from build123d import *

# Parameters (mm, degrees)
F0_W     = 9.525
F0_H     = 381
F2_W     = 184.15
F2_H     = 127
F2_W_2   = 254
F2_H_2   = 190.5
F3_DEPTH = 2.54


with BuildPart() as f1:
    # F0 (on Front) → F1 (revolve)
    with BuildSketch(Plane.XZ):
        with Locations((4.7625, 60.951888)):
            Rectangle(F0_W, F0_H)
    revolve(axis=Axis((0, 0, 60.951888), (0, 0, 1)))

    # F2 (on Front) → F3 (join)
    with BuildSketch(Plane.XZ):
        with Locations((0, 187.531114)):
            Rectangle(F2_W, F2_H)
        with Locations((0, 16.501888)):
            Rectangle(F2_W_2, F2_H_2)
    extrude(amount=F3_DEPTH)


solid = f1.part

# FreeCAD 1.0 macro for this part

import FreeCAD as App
import Part
import Sketcher
from FreeCAD import Vector
Q = App.Units.Quantity


def add_polygon(sketch, points):
    """Adds a closed chain of lines whose ends are joined by coincident constraints."""
    first, n = sketch.GeometryCount, len(points)
    for a, b in zip(points, points[1:] + points[:1]):
        sketch.addGeometry(Part.LineSegment(App.Vector(*a, 0), App.Vector(*b, 0)), False)
    for i in range(n):
        sketch.addConstraint(Sketcher.Constraint("Coincident", first + i, 2, first + (i + 1) % n, 1))

doc = App.newDocument("Part")
body = doc.addObject("PartDesign::Body", "Body")

# Sketch on XZ plane
sketch1 = body.newObject("Sketcher::SketchObject", "Sketch")
sketch1.AttachmentSupport = (doc.getObject("XZ_Plane"), [""])
sketch1.MapMode = "FlatFace"
add_polygon(sketch1, [(0, 251), (0, -130), (10, -130), (10, 251)])  # lines 0-3
sketch1.addConstraint(Sketcher.Constraint("Vertical", 0))
sketch1.addConstraint(Sketcher.Constraint("Horizontal", 1))
sketch1.addConstraint(Sketcher.Constraint("Vertical", 2))
sketch1.addConstraint(Sketcher.Constraint("Horizontal", 3))
sketch1.addConstraint(Sketcher.Constraint("PointOnObject", 0, 2, -2))
sketch1.addConstraint(Sketcher.Constraint("DistanceY", 0, 2, 0, 1, Q("15 in")))
sketch1.addConstraint(Sketcher.Constraint("DistanceX", 1, 1, 1, 2, Q("0.375 in")))
sketch1.addConstraint(Sketcher.Constraint("DistanceY", 0, 2, -1, 1, 129.548112))
revolution = body.newObject("PartDesign::Revolution", "Revolution")
revolution.Profile = sketch1
revolution.ReferenceAxis = (sketch1, ["V_Axis"])
revolution.Angle = 360

# Sketch on XZ plane
sketch2 = body.newObject("Sketcher::SketchObject", "Sketch001")
sketch2.AttachmentSupport = (doc.getObject("XZ_Plane"), [""])
sketch2.MapMode = "FlatFace"
add_polygon(sketch2, [(-92, 251), (-92, 124), (92, 124), (92, 251)])  # lines 0-3
add_polygon(sketch2, [(-127, 112), (-127, -79), (127, -79), (127, 112)])  # lines 4-7
sketch2.addConstraint(Sketcher.Constraint("Vertical", 0))
sketch2.addConstraint(Sketcher.Constraint("Horizontal", 1))
sketch2.addConstraint(Sketcher.Constraint("Vertical", 2))
sketch2.addConstraint(Sketcher.Constraint("Horizontal", 3))
sketch2.addConstraint(Sketcher.Constraint("Vertical", 4))
sketch2.addConstraint(Sketcher.Constraint("Horizontal", 5))
sketch2.addConstraint(Sketcher.Constraint("Vertical", 6))
sketch2.addConstraint(Sketcher.Constraint("Horizontal", 7))
sketch2.addConstraint(Sketcher.Constraint("DistanceX", 5, 1, 5, 2, Q("10 in")))
sketch2.addConstraint(Sketcher.Constraint("DistanceY", 0, 2, 0, 1, Q("5 in")))
sketch2.addConstraint(Sketcher.Constraint("DistanceY", 4, 2, 4, 1, Q("7.5 in")))
sketch2.addConstraint(Sketcher.Constraint("DistanceX", 4, 2, -1, 1, Q("5 in")))
sketch2.addConstraint(Sketcher.Constraint("DistanceX", 1, 1, 1, 2, Q("7.25 in")))
sketch2.addConstraint(Sketcher.Constraint("DistanceX", 0, 2, -1, 1, Q("3.625 in")))
sketch2.addConstraint(Sketcher.Constraint("DistanceY", -1, 1, 0, 2, 124.031114))
sketch2.addConstraint(Sketcher.Constraint("DistanceY", 4, 2, -1, 1, 78.748112))
pad1 = body.newObject("PartDesign::Pad", "Pad")
pad1.Profile = sketch2
pad1.Length = Q("0.1 in")

doc.recompute()
